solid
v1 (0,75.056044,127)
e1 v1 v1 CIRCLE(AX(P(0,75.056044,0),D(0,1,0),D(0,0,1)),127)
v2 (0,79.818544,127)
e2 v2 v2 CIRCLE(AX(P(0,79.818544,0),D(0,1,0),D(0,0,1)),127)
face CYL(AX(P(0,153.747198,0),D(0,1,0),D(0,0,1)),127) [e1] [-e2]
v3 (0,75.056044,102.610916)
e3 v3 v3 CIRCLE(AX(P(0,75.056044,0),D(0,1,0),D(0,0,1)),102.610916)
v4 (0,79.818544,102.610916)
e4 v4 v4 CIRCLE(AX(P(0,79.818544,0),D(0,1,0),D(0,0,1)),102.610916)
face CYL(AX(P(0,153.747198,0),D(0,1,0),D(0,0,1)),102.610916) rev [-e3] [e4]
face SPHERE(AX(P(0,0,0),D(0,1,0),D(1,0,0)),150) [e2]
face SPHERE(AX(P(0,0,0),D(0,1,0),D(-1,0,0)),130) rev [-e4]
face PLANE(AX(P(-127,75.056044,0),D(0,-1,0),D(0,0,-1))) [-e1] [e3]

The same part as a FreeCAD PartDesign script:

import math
import FreeCAD as App
import Part
import Sketcher

doc = App.newDocument("Part")
body = doc.addObject("PartDesign::Body", "Body")

sketch1 = body.newObject("Sketcher::SketchObject", "Sketch")
sketch1.AttachmentSupport = (doc.getObject("XY_Plane"), [""])
sketch1.MapMode = "FlatFace"
sketch1.addGeometry(Part.LineSegment(App.Vector(-102.6, 75.1, 0), App.Vector(-102.6, 79.8, 0)), False)
sketch1.addGeometry(Part.ArcOfCircle(Part.Circle(App.Vector(0, 0, 0), App.Vector(0, 0, 1), 130), math.radians(90), math.radians(142)), False)
sketch1.addGeometry(Part.LineSegment(App.Vector(0, 130, 0), App.Vector(0, 150, 0)), False)
sketch1.addGeometry(Part.ArcOfCircle(Part.Circle(App.Vector(0, 0, 0), App.Vector(0, 0, 1), 150), math.radians(90), math.radians(148)), False)
sketch1.addGeometry(Part.LineSegment(App.Vector(-127, 79.8, 0), App.Vector(-127, 75.1, 0)), False)
sketch1.addGeometry(Part.LineSegment(App.Vector(-127, 75.1, 0), App.Vector(-102.6, 75.1, 0)), False)
sketch1.addConstraint(Sketcher.Constraint("Coincident", 0, 2, 1, 2))
sketch1.addConstraint(Sketcher.Constraint("Coincident", 1, 1, 2, 1))
sketch1.addConstraint(Sketcher.Constraint("Coincident", 2, 2, 3, 1))
sketch1.addConstraint(Sketcher.Constraint("Coincident", 3, 2, 4, 1))
sketch1.addConstraint(Sketcher.Constraint("Coincident", 4, 2, 5, 1))
sketch1.addConstraint(Sketcher.Constraint("Coincident", 5, 2, 0, 1))
sketch1.addConstraint(Sketcher.Constraint("Vertical", 0))
sketch1.addConstraint(Sketcher.Constraint("Vertical", 2))
sketch1.addConstraint(Sketcher.Constraint("Vertical", 4))
sketch1.addConstraint(Sketcher.Constraint("Horizontal", 5))
sketch1.addConstraint(Sketcher.Constraint("Coincident", 1, 3, -1, 1))
sketch1.addConstraint(Sketcher.Constraint("Coincident", 3, 3, -1, 1))
sketch1.addConstraint(Sketcher.Constraint("PointOnObject", 1, 1, -2))
sketch1.addConstraint(Sketcher.Constraint("Horizontal", 0, 2, 3, 2))
sketch1.addConstraint(Sketcher.Constraint("Radius", 1, 130.0))
sketch1.addConstraint(Sketcher.Constraint("Radius", 3, 150.0))
sketch1.addConstraint(Sketcher.Constraint("DistanceX", 3, 2, -1, 1, 127.0))
sketch1.addConstraint(Sketcher.Constraint("DistanceY", 0, 1, 0, 2, 4.7625))
revolution = body.newObject("PartDesign::Revolution", "Revolution")
revolution.Profile = sketch1
revolution.ReferenceAxis = (sketch1, ["V_Axis"])
revolution.Angle = 360

doc.recompute()
